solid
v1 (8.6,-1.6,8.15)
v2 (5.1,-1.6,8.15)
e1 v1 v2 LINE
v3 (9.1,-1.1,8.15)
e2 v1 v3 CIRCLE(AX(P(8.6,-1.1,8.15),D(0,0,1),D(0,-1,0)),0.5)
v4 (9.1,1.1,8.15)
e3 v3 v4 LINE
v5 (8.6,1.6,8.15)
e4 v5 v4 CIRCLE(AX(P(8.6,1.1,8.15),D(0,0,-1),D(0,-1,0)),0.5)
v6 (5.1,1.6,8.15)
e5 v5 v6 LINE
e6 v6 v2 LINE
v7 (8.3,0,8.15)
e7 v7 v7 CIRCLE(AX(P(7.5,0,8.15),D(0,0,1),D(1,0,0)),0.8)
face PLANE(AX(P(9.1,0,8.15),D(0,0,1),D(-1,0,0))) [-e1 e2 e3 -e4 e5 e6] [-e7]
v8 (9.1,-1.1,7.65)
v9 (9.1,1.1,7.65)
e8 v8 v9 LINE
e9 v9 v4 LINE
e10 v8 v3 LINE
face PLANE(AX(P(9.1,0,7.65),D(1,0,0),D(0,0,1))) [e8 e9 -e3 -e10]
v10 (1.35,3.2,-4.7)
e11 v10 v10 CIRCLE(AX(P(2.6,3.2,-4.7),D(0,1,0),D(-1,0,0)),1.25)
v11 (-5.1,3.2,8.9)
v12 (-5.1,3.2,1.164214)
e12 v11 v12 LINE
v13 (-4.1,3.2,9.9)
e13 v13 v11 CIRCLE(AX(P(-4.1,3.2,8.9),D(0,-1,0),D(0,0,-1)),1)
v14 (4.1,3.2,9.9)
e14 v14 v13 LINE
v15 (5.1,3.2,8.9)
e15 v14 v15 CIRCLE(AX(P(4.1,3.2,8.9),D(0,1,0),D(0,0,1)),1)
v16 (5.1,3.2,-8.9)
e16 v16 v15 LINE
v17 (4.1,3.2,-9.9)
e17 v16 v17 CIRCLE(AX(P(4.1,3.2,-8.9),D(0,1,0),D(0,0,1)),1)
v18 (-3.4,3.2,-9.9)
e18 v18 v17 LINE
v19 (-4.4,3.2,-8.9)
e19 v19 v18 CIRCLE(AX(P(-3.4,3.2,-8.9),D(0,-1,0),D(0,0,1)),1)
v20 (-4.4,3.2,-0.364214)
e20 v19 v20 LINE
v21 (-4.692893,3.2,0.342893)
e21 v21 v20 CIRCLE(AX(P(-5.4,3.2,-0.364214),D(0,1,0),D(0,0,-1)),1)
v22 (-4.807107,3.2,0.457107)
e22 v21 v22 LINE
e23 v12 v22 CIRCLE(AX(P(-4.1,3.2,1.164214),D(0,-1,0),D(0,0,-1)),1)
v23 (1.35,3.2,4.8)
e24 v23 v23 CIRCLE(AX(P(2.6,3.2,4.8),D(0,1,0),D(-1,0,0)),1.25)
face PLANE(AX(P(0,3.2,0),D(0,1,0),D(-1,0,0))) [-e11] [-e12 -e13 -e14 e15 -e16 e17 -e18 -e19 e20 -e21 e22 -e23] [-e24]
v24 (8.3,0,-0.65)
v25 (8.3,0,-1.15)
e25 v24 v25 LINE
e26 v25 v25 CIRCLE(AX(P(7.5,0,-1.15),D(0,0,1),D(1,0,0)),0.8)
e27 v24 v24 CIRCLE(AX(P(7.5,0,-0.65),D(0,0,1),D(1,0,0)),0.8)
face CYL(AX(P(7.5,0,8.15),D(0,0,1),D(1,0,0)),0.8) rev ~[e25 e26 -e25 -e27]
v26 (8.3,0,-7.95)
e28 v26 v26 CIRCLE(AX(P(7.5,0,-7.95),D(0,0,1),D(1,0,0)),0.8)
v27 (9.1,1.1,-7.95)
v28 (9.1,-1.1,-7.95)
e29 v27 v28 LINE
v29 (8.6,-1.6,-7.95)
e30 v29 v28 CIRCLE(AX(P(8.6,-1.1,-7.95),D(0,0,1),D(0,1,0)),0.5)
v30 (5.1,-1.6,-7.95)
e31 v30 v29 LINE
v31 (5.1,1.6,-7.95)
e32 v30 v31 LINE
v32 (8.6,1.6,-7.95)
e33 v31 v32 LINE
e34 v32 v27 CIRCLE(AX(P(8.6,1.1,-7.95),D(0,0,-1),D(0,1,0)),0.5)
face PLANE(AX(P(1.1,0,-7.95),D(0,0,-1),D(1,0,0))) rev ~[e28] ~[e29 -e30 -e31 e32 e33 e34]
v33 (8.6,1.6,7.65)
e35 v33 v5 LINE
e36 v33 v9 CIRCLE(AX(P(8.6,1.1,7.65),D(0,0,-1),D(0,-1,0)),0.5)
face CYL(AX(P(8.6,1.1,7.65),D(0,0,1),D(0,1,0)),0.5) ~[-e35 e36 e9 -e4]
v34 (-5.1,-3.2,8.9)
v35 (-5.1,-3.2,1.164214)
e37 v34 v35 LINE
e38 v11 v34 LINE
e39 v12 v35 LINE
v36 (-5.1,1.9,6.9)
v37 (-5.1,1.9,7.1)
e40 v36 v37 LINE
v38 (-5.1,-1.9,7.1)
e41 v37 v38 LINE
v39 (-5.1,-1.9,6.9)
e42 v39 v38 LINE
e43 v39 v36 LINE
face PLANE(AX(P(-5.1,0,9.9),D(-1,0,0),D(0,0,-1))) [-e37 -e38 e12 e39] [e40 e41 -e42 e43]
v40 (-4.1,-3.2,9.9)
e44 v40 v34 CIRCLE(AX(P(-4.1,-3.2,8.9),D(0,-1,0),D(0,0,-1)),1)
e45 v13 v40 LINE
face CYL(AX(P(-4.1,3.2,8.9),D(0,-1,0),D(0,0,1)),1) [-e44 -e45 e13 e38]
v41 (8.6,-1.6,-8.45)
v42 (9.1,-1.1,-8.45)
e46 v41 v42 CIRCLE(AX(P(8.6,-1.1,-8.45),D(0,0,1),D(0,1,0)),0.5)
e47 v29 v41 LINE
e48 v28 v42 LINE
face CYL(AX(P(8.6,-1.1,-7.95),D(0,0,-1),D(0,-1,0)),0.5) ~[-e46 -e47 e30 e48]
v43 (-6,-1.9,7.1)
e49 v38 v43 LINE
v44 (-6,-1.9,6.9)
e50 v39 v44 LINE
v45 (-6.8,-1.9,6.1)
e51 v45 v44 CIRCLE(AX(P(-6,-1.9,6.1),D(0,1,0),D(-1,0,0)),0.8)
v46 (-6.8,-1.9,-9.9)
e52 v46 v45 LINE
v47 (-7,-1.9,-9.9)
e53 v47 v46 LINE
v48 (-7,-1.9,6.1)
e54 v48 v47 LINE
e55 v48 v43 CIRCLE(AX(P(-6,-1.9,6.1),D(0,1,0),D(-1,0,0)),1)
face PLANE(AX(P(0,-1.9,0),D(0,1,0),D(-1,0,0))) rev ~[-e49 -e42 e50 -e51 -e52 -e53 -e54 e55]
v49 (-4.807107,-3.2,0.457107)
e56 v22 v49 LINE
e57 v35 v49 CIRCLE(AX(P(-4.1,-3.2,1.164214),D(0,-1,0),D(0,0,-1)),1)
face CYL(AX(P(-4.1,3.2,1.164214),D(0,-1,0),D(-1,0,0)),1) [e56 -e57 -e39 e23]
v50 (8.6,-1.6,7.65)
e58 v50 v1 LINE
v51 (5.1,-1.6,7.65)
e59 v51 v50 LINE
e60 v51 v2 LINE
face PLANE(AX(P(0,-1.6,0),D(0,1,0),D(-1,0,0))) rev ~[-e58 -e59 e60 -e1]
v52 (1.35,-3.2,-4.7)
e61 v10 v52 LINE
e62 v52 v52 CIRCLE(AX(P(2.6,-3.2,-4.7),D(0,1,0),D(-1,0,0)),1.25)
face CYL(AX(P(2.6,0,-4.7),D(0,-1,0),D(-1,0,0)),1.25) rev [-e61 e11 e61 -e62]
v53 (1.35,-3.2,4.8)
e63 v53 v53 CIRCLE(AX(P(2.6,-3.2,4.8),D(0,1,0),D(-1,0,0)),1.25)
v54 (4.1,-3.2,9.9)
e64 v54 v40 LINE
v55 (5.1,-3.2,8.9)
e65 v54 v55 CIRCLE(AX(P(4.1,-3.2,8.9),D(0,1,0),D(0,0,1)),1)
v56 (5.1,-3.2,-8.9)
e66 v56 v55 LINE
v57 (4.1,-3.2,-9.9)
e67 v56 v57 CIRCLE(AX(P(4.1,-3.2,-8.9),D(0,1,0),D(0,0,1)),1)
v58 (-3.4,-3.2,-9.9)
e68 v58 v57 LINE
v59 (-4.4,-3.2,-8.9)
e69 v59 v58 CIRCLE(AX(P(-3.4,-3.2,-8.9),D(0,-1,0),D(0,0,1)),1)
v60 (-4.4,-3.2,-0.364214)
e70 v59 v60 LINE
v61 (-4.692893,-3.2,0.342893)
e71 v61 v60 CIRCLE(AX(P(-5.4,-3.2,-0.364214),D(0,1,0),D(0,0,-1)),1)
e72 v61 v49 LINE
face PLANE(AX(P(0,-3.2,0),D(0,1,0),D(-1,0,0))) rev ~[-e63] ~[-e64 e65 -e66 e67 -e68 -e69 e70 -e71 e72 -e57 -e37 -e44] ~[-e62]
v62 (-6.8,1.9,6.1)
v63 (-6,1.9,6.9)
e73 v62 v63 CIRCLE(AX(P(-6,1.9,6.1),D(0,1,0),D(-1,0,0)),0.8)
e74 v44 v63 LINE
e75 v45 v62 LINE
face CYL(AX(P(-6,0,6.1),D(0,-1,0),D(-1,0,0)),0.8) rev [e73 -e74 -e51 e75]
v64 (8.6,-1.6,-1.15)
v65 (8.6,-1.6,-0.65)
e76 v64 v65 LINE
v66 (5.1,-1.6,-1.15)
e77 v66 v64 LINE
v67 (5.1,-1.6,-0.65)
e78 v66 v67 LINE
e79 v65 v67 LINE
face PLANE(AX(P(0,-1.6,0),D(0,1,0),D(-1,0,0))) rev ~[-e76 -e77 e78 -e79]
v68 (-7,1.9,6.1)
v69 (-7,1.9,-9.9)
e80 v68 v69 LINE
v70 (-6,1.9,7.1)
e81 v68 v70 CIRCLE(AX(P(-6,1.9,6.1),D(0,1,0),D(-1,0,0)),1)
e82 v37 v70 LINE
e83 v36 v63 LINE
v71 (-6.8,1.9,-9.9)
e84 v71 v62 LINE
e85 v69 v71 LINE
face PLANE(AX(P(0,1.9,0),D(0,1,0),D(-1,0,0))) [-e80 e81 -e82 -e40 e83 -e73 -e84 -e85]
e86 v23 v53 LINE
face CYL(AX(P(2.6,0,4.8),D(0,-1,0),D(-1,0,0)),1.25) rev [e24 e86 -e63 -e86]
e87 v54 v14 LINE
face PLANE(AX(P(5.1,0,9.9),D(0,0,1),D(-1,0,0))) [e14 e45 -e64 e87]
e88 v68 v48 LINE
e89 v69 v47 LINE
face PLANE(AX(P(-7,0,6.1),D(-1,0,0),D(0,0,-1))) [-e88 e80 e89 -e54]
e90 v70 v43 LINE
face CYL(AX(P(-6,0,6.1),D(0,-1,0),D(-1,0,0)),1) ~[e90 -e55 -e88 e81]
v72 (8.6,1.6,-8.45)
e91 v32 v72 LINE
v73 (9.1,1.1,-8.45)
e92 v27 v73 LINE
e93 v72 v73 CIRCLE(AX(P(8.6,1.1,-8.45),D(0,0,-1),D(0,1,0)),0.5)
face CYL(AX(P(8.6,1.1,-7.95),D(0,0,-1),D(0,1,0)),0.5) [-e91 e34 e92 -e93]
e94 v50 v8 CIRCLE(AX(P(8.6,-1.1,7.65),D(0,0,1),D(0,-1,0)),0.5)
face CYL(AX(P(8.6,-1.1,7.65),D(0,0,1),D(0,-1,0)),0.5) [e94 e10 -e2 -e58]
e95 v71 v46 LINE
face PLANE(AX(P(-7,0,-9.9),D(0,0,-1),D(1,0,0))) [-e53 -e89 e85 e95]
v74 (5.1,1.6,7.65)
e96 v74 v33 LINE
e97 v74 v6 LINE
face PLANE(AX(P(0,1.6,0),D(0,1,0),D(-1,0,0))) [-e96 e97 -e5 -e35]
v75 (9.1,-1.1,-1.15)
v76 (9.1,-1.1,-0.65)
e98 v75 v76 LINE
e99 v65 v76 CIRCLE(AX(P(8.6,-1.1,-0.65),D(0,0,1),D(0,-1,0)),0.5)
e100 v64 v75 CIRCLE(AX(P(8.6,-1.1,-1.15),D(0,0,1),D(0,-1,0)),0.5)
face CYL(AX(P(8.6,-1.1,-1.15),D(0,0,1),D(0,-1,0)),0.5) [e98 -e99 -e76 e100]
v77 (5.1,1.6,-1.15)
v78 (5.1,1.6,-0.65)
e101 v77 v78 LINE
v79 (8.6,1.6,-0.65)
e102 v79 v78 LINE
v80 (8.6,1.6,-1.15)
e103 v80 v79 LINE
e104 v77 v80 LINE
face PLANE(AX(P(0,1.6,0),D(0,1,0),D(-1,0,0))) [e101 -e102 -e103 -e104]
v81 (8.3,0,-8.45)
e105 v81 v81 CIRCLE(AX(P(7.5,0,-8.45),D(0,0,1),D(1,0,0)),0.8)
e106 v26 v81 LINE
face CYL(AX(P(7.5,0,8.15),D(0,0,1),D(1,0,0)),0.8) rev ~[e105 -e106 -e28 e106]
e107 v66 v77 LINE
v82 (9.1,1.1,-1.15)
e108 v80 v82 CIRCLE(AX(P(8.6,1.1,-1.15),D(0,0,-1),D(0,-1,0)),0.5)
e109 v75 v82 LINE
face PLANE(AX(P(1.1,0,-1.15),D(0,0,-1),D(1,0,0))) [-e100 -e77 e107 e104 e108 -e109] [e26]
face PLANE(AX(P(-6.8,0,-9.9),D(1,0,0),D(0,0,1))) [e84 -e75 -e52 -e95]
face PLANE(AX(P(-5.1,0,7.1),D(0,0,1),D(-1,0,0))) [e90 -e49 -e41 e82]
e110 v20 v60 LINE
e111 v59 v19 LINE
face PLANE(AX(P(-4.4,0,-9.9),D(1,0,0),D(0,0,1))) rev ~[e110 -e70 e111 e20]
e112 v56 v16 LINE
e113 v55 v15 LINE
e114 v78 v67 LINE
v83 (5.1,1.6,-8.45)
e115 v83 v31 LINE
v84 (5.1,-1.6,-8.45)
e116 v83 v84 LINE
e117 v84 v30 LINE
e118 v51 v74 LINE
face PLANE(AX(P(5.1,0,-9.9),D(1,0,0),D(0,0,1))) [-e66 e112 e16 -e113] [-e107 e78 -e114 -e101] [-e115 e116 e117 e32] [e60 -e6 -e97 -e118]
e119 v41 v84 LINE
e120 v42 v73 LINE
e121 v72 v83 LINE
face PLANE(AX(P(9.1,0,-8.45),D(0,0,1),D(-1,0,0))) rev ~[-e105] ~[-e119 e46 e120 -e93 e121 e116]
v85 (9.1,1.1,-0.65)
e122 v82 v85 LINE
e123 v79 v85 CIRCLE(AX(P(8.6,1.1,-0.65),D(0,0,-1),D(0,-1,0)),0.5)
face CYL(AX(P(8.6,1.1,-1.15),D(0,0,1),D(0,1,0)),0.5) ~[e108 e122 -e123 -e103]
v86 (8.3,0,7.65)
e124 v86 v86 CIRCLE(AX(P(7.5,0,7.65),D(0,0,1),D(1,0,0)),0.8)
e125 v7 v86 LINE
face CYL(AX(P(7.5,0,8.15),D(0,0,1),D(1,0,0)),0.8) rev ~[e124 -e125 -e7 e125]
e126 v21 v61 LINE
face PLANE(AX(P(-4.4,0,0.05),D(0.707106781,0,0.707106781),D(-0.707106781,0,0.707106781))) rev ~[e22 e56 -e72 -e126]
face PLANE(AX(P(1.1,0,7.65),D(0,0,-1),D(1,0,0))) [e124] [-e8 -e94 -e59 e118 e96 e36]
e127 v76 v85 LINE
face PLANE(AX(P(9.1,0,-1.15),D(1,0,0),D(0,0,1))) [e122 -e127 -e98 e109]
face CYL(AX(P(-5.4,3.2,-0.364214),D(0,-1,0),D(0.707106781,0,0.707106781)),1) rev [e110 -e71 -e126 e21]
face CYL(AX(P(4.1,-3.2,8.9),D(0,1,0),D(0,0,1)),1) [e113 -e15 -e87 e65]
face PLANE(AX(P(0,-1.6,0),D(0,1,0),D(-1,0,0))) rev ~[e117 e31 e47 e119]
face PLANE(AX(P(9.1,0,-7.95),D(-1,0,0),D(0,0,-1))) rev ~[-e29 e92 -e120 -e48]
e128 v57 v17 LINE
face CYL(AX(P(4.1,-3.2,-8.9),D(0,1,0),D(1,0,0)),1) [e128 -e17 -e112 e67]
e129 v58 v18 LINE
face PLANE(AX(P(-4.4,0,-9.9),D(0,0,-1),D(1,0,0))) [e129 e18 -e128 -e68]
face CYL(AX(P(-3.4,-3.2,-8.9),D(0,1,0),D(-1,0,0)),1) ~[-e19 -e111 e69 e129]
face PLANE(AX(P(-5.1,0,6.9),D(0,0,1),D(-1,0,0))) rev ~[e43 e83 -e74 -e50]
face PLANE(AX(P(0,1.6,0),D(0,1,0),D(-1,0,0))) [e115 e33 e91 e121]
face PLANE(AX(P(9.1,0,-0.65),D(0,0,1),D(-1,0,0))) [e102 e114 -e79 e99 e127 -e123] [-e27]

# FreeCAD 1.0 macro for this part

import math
import FreeCAD as App
import Part
import Sketcher

V = App.Vector
Q = App.Units.Quantity


def edges_at(feature, points):
    """Names of the edges that pass closest to the given points."""
    edges = feature.Shape.Edges
    near = lambda p: min(range(len(edges)), key=lambda i: edges[i].distToShape(Part.Vertex(*p))[0])
    return sorted({f"Edge{near(p) + 1}" for p in points})

doc = App.newDocument("Part")
body = doc.addObject("PartDesign::Body", "Body")

sketch1 = body.newObject("Sketcher::SketchObject", "Sketch")
sketch1.AttachmentSupport = (doc.getObject("XZ_Plane"), [""])
sketch1.MapMode = "FlatFace"
sketch1.addGeometry(Part.LineSegment(V(-5.1, 9.9, 0), V(5.1, 9.9, 0)), False)
sketch1.addGeometry(Part.LineSegment(V(5.1, 9.9, 0), V(5.1, -9.9, 0)), False)
sketch1.addGeometry(Part.LineSegment(V(5.1, -9.9, 0), V(-4.4, -9.9, 0)), False)
sketch1.addGeometry(Part.LineSegment(V(-4.4, -9.9, 0), V(-4.4, 0.05, 0)), False)
sketch1.addGeometry(Part.LineSegment(V(-4.4, 0.05, 0), V(-5.1, 0.75, 0)), False)
sketch1.addGeometry(Part.LineSegment(V(-5.1, 0.75, 0), V(-5.1, 9.9, 0)), False)
sketch1.addGeometry(Part.Circle(V(2.6, -4.7, 0), V(0, 0, 1), 1.25), False)
sketch1.addGeometry(Part.Circle(V(2.6, 4.8, 0), V(0, 0, 1), 1.25), False)
sketch1.addConstraint(Sketcher.Constraint("Coincident", 0, 2, 1, 1))
sketch1.addConstraint(Sketcher.Constraint("Coincident", 1, 2, 2, 1))
sketch1.addConstraint(Sketcher.Constraint("Coincident", 2, 2, 3, 1))
sketch1.addConstraint(Sketcher.Constraint("Coincident", 3, 2, 4, 1))
sketch1.addConstraint(Sketcher.Constraint("Coincident", 4, 2, 5, 1))
sketch1.addConstraint(Sketcher.Constraint("Coincident", 5, 2, 0, 1))
sketch1.addConstraint(Sketcher.Constraint("Horizontal", 0))
sketch1.addConstraint(Sketcher.Constraint("Vertical", 1))
sketch1.addConstraint(Sketcher.Constraint("Horizontal", 2))
sketch1.addConstraint(Sketcher.Constraint("Vertical", 3))
sketch1.addConstraint(Sketcher.Constraint("Vertical", 5))
sketch1.addConstraint(Sketcher.Constraint("Equal", 6, 7))
sketch1.addConstraint(Sketcher.Constraint("Symmetric", 1, 2, 5, 2, -1, 1))
sketch1.addConstraint(Sketcher.Constraint("Vertical", 6, 3, 7, 3))
sketch1.addConstraint(Sketcher.Constraint("Diameter", 6, 2.5))
sketch1.addConstraint(Sketcher.Constraint("Angle", 4, Q("135 deg")))
sketch1.addConstraint(Sketcher.Constraint("DistanceX", 0, 1, 0, 2, 10.2))
sketch1.addConstraint(Sketcher.Constraint("DistanceX", 2, 2, 2, 1, 9.5))
sketch1.addConstraint(Sketcher.Constraint("DistanceY", 1, 2, 1, 1, 19.8))
sketch1.addConstraint(Sketcher.Constraint("DistanceY", 6, 3, 7, 3, 9.5))
sketch1.addConstraint(Sketcher.Constraint("DistanceX", 7, 3, 0, 2, 2.5))
sketch1.addConstraint(Sketcher.Constraint("DistanceY", 7, 3, 0, 2, 5.1))
sketch1.addConstraint(Sketcher.Constraint("DistanceY", 3, 1, 3, 2, 9.95))
pad1 = body.newObject("PartDesign::Pad", "Pad")
pad1.Profile = sketch1
pad1.Length = 6.4
pad1.Midplane = True

sketch2 = body.newObject("Sketcher::SketchObject", "Sketch001")
sketch2.AttachmentSupport = (doc.getObject("XZ_Plane"), [""])
sketch2.MapMode = "FlatFace"
sketch2.addGeometry(Part.LineSegment(V(-5.1, 7.1, 0), V(-5.1, 6.9, 0)), False)
sketch2.addGeometry(Part.LineSegment(V(-5.1, 6.9, 0), V(-6, 6.9, 0)), False)
sketch2.addGeometry(Part.ArcOfCircle(Part.Circle(V(-6, 6.1, 0), V(0, 0, 1), 0.8), math.radians(90), math.radians(180)), False)
sketch2.addGeometry(Part.LineSegment(V(-6.8, 6.1, 0), V(-6.8, -9.9, 0)), False)
sketch2.addGeometry(Part.LineSegment(V(-6.8, -9.9, 0), V(-7, -9.9, 0)), False)
sketch2.addGeometry(Part.LineSegment(V(-7, -9.9, 0), V(-7, 6.1, 0)), False)
sketch2.addGeometry(Part.ArcOfCircle(Part.Circle(V(-6, 6.1, 0), V(0, 0, 1), 1), math.radians(90), math.radians(180)), False)
sketch2.addGeometry(Part.LineSegment(V(-6, 7.1, 0), V(-5.1, 7.1, 0)), False)
sketch2.addConstraint(Sketcher.Constraint("Coincident", 0, 2, 1, 1))
sketch2.addConstraint(Sketcher.Constraint("Tangent", 1, 2, 2, 1))
sketch2.addConstraint(Sketcher.Constraint("Tangent", 2, 2, 3, 1))
sketch2.addConstraint(Sketcher.Constraint("Coincident", 3, 2, 4, 1))
sketch2.addConstraint(Sketcher.Constraint("Coincident", 4, 2, 5, 1))
sketch2.addConstraint(Sketcher.Constraint("Tangent", 5, 2, 6, 2))
sketch2.addConstraint(Sketcher.Constraint("Tangent", 6, 1, 7, 1))
sketch2.addConstraint(Sketcher.Constraint("Coincident", 7, 2, 0, 1))
sketch2.addConstraint(Sketcher.Constraint("Vertical", 0))
sketch2.addConstraint(Sketcher.Constraint("Horizontal", 1))
sketch2.addConstraint(Sketcher.Constraint("Vertical", 3))
sketch2.addConstraint(Sketcher.Constraint("Horizontal", 4))
sketch2.addConstraint(Sketcher.Constraint("Vertical", 5))
sketch2.addConstraint(Sketcher.Constraint("Horizontal", 7))
sketch2.addConstraint(Sketcher.Constraint("Coincident", 6, 3, 2, 3))
sketch2.addConstraint(Sketcher.Constraint("Radius", 6, 1.0))
sketch2.addConstraint(Sketcher.Constraint("DistanceX", 4, 2, 4, 1, 0.2))
sketch2.addConstraint(Sketcher.Constraint("DistanceX", 5, 2, 0, 2, 1.9))
sketch2.addConstraint(Sketcher.Constraint("DistanceY", 3, 2, 3, 1, 16.0))
sketch2.addConstraint(Sketcher.Constraint("DistanceX", 2, 3, -1, 1, 6.0))
sketch2.addConstraint(Sketcher.Constraint("DistanceY", -1, 1, 2, 3, 6.1))
pad2 = body.newObject("PartDesign::Pad", "Pad001")
pad2.Profile = sketch2
pad2.Length = 3.8
pad2.Midplane = True

sketch3 = body.newObject("Sketcher::SketchObject", "Sketch002")
sketch3.AttachmentSupport = (doc.getObject("XZ_Plane"), [""])
sketch3.MapMode = "FlatFace"
sketch3.addGeometry(Part.LineSegment(V(1.1, 8.15, 0), V(9.1, 8.15, 0)), False)
sketch3.addGeometry(Part.LineSegment(V(9.1, 8.15, 0), V(9.1, 7.65, 0)), False)
sketch3.addGeometry(Part.LineSegment(V(9.1, 7.65, 0), V(1.1, 7.65, 0)), False)
sketch3.addGeometry(Part.LineSegment(V(1.1, 7.65, 0), V(1.1, 8.15, 0)), False)
sketch3.addGeometry(Part.LineSegment(V(1.1, -0.65, 0), V(9.1, -0.65, 0)), False)
sketch3.addGeometry(Part.LineSegment(V(9.1, -0.65, 0), V(9.1, -1.15, 0)), False)
sketch3.addGeometry(Part.LineSegment(V(9.1, -1.15, 0), V(1.1, -1.15, 0)), False)
sketch3.addGeometry(Part.LineSegment(V(1.1, -1.15, 0), V(1.1, -0.65, 0)), False)
sketch3.addGeometry(Part.LineSegment(V(9.1, -7.95, 0), V(9.1, -8.45, 0)), False)
sketch3.addGeometry(Part.LineSegment(V(9.1, -8.45, 0), V(1.1, -8.45, 0)), False)
sketch3.addGeometry(Part.LineSegment(V(1.1, -8.45, 0), V(1.1, -7.95, 0)), False)
sketch3.addGeometry(Part.LineSegment(V(1.1, -7.95, 0), V(9.1, -7.95, 0)), False)
sketch3.addConstraint(Sketcher.Constraint("Coincident", 0, 2, 1, 1))
sketch3.addConstraint(Sketcher.Constraint("Coincident", 1, 2, 2, 1))
sketch3.addConstraint(Sketcher.Constraint("Coincident", 2, 2, 3, 1))
sketch3.addConstraint(Sketcher.Constraint("Coincident", 3, 2, 0, 1))
sketch3.addConstraint(Sketcher.Constraint("Coincident", 4, 2, 5, 1))
sketch3.addConstraint(Sketcher.Constraint("Coincident", 5, 2, 6, 1))
sketch3.addConstraint(Sketcher.Constraint("Coincident", 6, 2, 7, 1))
sketch3.addConstraint(Sketcher.Constraint("Coincident", 7, 2, 4, 1))
sketch3.addConstraint(Sketcher.Constraint("Coincident", 8, 2, 9, 1))
sketch3.addConstraint(Sketcher.Constraint("Coincident", 9, 2, 10, 1))
sketch3.addConstraint(Sketcher.Constraint("Coincident", 10, 2, 11, 1))
sketch3.addConstraint(Sketcher.Constraint("Coincident", 11, 2, 8, 1))
sketch3.addConstraint(Sketcher.Constraint("Horizontal", 0))
sketch3.addConstraint(Sketcher.Constraint("Vertical", 1))
sketch3.addConstraint(Sketcher.Constraint("Horizontal", 2))
sketch3.addConstraint(Sketcher.Constraint("Vertical", 3))
sketch3.addConstraint(Sketcher.Constraint("Horizontal", 4))
sketch3.addConstraint(Sketcher.Constraint("Vertical", 5))
sketch3.addConstraint(Sketcher.Constraint("Horizontal", 6))
sketch3.addConstraint(Sketcher.Constraint("Vertical", 7))
sketch3.addConstraint(Sketcher.Constraint("Vertical", 8))
sketch3.addConstraint(Sketcher.Constraint("Horizontal", 9))
sketch3.addConstraint(Sketcher.Constraint("Vertical", 10))
sketch3.addConstraint(Sketcher.Constraint("Horizontal", 11))
sketch3.addConstraint(Sketcher.Constraint("Vertical", 1, 2, 4, 2))
sketch3.addConstraint(Sketcher.Constraint("Vertical", 3, 2, 6, 2))
sketch3.addConstraint(Sketcher.Constraint("Vertical", 5, 2, 8, 2))
sketch3.addConstraint(Sketcher.Constraint("Vertical", 7, 2, 9, 2))
sketch3.addConstraint(Sketcher.Constraint("Equal", 3, 5))
sketch3.addConstraint(Sketcher.Constraint("Equal", 7, 8))
sketch3.addConstraint(Sketcher.Constraint("DistanceX", 0, 1, 0, 2, 8.0))
sketch3.addConstraint(Sketcher.Constraint("DistanceY", 1, 2, 1, 1, 0.5))
sketch3.addConstraint(Sketcher.Constraint("DistanceY", 4, 2, 0, 2, 8.8))
sketch3.addConstraint(Sketcher.Constraint("DistanceY", 8, 2, 5, 2, 7.3))
sketch3.addConstraint(Sketcher.Constraint("DistanceX", -1, 1, 0, 2, 9.1))
sketch3.addConstraint(Sketcher.Constraint("DistanceY", -1, 1, 0, 2, 8.15))
pad3 = body.newObject("PartDesign::Pad", "Pad002")
pad3.Profile = sketch3
pad3.Length = 3.2
pad3.Midplane = True

sketch4 = body.newObject("Sketcher::SketchObject", "Sketch003")
sketch4.AttachmentSupport = (doc.getObject("XY_Plane"), [""])
sketch4.MapMode = "FlatFace"
sketch4.AttachmentOffset = App.Placement(V(0, 0, 8.15), App.Rotation())
sketch4.addGeometry(Part.Circle(V(7.5, 0, 0), V(0, 0, 1), 0.8), False)
sketch4.addConstraint(Sketcher.Constraint("PointOnObject", 0, 3, -1))
sketch4.addConstraint(Sketcher.Constraint("Diameter", 0, 1.6))
sketch4.addConstraint(Sketcher.Constraint("DistanceX", -1, 1, 0, 3, 7.5))
pocket1 = body.newObject("PartDesign::Pocket", "Pocket")
pocket1.Profile = sketch4
pocket1.Length = 40
doc.recompute()

fillet = body.newObject("PartDesign::Fillet", "Fillet")
fillet.Base = (pocket1, edges_at(pocket1, [
    (5.1, 0, 9.9),
    (-5.1, 0, 9.9),
    (-4.4, 0, -9.9),
    (5.1, 0, -9.9),
    (-4.4, 0, 0.05),
    (-5.1, 0, 0.75),
]))
fillet.Radius = 1
doc.recompute()

fillet2 = body.newObject("PartDesign::Fillet", "Fillet001")
fillet2.Base = (fillet, edges_at(fillet, [
    (9.1, 1.6, -8.2),
    (9.1, -1.6, -8.2),
    (9.1, -1.6, -0.9),
    (9.1, 1.6, -0.9),
    (9.1, -1.6, 7.9),
    (9.1, 1.6, 7.9),
]))
fillet2.Radius = 0.5

doc.recompute()
